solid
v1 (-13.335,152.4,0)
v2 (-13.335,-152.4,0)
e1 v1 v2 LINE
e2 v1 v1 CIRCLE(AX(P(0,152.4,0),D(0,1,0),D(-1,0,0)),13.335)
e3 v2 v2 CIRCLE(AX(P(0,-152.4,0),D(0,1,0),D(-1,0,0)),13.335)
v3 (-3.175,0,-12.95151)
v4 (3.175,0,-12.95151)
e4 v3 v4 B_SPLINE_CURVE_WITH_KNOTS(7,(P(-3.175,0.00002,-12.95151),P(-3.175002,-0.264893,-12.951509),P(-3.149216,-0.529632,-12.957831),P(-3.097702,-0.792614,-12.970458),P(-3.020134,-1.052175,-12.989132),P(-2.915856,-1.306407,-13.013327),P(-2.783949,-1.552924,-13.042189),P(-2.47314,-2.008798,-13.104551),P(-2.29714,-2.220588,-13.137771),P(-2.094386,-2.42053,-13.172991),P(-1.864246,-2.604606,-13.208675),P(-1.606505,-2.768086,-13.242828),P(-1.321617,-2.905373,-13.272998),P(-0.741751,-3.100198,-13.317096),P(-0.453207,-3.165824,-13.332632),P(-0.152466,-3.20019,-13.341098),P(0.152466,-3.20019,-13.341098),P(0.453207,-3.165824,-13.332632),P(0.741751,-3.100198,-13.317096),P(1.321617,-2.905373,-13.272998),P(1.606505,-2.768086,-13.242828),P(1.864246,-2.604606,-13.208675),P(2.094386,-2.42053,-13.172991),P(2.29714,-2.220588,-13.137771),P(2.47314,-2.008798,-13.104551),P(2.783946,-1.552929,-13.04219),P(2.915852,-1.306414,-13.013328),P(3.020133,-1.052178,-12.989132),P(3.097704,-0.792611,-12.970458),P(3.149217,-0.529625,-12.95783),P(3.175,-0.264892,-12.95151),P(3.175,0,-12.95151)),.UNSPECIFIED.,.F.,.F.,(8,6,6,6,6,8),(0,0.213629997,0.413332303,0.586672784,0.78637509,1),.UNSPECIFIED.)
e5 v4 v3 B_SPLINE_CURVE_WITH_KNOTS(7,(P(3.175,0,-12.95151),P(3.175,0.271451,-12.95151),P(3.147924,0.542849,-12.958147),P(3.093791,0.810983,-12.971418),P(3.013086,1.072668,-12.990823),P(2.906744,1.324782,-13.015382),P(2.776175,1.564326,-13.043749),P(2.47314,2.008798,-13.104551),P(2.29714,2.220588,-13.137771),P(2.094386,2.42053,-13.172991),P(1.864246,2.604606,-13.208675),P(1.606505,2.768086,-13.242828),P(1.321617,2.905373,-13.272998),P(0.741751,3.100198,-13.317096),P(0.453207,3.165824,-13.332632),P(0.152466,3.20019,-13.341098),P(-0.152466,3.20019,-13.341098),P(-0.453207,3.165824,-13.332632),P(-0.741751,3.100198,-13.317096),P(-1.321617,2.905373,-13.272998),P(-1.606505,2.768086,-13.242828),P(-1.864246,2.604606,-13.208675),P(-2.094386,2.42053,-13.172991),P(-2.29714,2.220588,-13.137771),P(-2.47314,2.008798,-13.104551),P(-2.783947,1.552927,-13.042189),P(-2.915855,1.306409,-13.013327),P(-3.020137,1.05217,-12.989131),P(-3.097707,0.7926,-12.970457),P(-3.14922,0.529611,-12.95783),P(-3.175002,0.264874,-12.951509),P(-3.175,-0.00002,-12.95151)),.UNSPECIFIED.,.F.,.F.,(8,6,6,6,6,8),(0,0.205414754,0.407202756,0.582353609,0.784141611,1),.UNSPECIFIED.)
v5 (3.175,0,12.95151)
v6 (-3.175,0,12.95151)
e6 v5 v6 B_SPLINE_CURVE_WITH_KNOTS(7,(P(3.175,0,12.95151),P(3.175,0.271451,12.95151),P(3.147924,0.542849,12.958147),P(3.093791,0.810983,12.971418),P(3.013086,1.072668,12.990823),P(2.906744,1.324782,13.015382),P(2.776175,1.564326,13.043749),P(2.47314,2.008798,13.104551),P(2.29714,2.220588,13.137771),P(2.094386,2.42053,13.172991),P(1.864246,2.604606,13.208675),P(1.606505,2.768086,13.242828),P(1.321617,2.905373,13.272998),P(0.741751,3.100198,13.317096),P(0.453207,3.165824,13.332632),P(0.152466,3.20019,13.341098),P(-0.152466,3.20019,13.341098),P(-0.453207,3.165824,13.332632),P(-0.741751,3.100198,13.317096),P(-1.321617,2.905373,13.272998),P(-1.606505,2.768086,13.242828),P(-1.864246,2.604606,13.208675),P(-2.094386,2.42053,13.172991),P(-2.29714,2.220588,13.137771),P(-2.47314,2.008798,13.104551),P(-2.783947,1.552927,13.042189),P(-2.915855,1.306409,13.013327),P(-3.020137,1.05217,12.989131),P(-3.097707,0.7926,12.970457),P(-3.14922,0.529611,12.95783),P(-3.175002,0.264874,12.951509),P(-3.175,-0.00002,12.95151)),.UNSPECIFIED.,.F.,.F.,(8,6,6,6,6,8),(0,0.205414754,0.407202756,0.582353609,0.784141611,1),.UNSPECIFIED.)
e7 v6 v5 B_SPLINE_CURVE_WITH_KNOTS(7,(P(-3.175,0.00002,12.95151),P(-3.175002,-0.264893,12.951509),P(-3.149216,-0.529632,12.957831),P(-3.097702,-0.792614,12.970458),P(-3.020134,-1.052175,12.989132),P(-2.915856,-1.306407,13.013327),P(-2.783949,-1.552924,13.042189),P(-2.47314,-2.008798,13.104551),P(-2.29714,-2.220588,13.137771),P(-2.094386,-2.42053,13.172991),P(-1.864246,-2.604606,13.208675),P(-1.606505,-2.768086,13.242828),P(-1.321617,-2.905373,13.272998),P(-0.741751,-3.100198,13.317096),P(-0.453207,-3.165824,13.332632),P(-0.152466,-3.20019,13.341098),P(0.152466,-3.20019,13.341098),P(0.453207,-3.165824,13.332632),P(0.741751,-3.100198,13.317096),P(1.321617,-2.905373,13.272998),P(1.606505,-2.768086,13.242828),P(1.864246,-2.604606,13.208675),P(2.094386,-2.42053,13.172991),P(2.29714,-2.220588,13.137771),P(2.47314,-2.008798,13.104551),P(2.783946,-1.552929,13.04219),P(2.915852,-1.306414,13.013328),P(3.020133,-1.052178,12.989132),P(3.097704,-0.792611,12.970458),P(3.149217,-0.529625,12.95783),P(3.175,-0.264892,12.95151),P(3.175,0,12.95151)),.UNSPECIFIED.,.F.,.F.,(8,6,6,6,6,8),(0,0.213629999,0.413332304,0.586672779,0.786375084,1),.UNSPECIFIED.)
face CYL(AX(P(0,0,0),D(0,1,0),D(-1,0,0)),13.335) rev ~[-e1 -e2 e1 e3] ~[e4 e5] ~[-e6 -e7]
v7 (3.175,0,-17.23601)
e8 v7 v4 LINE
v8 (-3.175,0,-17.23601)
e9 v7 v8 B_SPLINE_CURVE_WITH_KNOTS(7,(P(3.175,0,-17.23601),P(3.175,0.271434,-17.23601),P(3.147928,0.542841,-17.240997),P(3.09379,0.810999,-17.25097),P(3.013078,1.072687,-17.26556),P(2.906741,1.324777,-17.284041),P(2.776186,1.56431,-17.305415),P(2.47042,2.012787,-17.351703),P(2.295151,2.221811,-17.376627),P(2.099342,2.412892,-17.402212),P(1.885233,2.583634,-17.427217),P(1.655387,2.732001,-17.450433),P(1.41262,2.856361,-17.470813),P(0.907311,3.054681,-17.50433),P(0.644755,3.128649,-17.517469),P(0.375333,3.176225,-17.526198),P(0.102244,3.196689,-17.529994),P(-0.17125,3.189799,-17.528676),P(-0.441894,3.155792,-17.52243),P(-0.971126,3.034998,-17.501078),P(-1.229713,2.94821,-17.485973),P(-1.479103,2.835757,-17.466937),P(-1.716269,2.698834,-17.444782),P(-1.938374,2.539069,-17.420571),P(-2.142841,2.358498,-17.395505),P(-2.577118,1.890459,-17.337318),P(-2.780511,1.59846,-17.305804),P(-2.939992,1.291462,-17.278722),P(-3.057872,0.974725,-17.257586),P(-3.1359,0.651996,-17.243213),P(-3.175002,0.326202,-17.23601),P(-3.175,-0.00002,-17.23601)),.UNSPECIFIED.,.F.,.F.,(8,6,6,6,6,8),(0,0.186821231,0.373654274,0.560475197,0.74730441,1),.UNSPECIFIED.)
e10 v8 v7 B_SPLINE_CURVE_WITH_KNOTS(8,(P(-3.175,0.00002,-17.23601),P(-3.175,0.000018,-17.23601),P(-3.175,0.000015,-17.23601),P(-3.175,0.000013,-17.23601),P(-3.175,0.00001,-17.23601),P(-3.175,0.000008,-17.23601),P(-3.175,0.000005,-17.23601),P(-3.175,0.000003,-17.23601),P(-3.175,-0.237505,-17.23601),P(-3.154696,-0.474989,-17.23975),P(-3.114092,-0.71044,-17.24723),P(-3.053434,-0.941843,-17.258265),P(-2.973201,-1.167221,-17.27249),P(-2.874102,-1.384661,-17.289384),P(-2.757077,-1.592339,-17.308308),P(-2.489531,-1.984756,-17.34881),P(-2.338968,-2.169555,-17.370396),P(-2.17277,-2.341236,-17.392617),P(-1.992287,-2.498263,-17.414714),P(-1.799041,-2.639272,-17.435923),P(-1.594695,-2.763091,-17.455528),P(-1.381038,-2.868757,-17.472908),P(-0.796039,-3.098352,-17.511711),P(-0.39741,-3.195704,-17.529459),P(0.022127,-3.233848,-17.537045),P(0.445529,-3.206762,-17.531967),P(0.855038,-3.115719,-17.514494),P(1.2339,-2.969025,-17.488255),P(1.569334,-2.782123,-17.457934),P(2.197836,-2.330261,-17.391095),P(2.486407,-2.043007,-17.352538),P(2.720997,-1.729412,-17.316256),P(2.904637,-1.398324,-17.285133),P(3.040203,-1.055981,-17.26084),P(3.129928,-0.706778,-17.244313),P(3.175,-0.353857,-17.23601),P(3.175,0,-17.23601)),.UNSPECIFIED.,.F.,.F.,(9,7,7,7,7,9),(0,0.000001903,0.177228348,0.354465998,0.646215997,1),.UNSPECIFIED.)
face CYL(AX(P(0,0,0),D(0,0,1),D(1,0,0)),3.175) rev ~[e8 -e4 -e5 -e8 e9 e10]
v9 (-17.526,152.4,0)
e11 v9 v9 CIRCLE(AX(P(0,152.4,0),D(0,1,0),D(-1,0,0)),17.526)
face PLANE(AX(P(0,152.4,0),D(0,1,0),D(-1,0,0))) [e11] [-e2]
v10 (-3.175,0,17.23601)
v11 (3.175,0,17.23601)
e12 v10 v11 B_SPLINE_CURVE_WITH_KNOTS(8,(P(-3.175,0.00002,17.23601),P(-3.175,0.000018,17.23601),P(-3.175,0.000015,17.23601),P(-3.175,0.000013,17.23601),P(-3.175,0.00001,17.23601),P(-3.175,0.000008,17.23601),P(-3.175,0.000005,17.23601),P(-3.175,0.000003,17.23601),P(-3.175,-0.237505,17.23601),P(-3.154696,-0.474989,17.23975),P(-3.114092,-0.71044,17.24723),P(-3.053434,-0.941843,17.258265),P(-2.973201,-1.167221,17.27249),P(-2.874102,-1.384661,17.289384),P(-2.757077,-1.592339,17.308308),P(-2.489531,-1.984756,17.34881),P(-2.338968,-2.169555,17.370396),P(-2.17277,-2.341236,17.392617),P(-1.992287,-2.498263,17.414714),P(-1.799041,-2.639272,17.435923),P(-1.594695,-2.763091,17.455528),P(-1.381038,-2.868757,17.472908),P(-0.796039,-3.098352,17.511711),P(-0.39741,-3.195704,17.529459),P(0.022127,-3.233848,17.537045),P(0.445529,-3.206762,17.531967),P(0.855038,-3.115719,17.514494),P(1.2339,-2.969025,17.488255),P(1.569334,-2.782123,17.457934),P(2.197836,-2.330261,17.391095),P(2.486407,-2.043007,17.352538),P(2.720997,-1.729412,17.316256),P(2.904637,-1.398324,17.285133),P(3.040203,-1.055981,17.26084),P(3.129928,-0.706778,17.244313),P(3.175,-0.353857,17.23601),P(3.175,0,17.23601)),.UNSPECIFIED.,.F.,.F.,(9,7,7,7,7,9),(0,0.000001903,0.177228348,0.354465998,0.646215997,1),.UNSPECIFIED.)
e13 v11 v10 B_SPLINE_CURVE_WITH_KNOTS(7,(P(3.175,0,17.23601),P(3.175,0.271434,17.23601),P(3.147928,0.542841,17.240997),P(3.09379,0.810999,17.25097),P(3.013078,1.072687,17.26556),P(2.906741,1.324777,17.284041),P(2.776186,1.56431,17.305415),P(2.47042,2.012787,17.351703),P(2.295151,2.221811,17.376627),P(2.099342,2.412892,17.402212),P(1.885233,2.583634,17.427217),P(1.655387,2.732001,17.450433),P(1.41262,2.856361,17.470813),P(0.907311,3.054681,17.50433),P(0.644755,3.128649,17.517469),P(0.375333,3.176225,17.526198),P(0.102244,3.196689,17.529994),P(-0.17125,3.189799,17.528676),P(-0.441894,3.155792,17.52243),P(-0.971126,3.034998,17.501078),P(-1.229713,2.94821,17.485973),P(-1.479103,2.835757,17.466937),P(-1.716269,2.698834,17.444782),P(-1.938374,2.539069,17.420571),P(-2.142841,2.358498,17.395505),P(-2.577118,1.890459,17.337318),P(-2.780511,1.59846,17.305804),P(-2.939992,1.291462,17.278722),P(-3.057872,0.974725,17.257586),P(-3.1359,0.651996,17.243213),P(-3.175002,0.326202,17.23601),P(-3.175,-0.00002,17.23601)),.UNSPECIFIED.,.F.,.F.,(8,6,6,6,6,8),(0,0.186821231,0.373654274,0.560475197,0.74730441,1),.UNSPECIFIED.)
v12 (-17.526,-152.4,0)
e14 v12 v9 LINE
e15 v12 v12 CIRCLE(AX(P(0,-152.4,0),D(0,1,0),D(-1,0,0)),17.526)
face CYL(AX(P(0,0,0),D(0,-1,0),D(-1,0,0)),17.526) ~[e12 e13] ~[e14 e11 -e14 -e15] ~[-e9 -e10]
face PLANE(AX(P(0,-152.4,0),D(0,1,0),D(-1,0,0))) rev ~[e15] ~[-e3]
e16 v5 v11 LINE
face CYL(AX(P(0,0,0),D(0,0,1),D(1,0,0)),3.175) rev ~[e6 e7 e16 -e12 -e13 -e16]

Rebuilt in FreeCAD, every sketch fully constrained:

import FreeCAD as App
import Part
import Sketcher

V = App.Vector
Q = App.Units.Quantity

doc = App.newDocument("Part")
body = doc.addObject("PartDesign::Body", "Body")

# Sketch on XZ plane
sketch1 = body.newObject("Sketcher::SketchObject", "Sketch")
sketch1.AttachmentSupport = (doc.getObject("XZ_Plane"), [""])
sketch1.MapMode = "FlatFace"
sketch1.addGeometry(Part.Circle(V(0, 0, 0), V(0, 0, 1), 17.526), False)
sketch1.addGeometry(Part.Circle(V(0, 0, 0), V(0, 0, 1), 13.335), False)
sketch1.addConstraint(Sketcher.Constraint("Coincident", 0, 3, -1, 1))
sketch1.addConstraint(Sketcher.Constraint("Coincident", 1, 3, -1, 1))
sketch1.addConstraint(Sketcher.Constraint("Diameter", 0, Q("1.38 in")))
sketch1.addConstraint(Sketcher.Constraint("Diameter", 1, Q("1.05 in")))
pad1 = body.newObject("PartDesign::Pad", "Pad")
pad1.Profile = sketch1
pad1.Length = Q("12 in")
pad1.Midplane = True

# Sketch on XY plane
sketch2 = body.newObject("Sketcher::SketchObject", "Sketch001")
sketch2.AttachmentSupport = (doc.getObject("XY_Plane"), [""])
sketch2.MapMode = "FlatFace"
sketch2.addGeometry(Part.Circle(V(0, 0, 0), V(0, 0, 1), 3.175), False)
sketch2.addConstraint(Sketcher.Constraint("Coincident", 0, 3, -1, 1))
sketch2.addConstraint(Sketcher.Constraint("Diameter", 0, Q("0.25 in")))
pocket1 = body.newObject("PartDesign::Pocket", "Pocket")
pocket1.Profile = sketch2
pocket1.Type = "ThroughAll"
pocket1.Midplane = True

doc.recompute()
